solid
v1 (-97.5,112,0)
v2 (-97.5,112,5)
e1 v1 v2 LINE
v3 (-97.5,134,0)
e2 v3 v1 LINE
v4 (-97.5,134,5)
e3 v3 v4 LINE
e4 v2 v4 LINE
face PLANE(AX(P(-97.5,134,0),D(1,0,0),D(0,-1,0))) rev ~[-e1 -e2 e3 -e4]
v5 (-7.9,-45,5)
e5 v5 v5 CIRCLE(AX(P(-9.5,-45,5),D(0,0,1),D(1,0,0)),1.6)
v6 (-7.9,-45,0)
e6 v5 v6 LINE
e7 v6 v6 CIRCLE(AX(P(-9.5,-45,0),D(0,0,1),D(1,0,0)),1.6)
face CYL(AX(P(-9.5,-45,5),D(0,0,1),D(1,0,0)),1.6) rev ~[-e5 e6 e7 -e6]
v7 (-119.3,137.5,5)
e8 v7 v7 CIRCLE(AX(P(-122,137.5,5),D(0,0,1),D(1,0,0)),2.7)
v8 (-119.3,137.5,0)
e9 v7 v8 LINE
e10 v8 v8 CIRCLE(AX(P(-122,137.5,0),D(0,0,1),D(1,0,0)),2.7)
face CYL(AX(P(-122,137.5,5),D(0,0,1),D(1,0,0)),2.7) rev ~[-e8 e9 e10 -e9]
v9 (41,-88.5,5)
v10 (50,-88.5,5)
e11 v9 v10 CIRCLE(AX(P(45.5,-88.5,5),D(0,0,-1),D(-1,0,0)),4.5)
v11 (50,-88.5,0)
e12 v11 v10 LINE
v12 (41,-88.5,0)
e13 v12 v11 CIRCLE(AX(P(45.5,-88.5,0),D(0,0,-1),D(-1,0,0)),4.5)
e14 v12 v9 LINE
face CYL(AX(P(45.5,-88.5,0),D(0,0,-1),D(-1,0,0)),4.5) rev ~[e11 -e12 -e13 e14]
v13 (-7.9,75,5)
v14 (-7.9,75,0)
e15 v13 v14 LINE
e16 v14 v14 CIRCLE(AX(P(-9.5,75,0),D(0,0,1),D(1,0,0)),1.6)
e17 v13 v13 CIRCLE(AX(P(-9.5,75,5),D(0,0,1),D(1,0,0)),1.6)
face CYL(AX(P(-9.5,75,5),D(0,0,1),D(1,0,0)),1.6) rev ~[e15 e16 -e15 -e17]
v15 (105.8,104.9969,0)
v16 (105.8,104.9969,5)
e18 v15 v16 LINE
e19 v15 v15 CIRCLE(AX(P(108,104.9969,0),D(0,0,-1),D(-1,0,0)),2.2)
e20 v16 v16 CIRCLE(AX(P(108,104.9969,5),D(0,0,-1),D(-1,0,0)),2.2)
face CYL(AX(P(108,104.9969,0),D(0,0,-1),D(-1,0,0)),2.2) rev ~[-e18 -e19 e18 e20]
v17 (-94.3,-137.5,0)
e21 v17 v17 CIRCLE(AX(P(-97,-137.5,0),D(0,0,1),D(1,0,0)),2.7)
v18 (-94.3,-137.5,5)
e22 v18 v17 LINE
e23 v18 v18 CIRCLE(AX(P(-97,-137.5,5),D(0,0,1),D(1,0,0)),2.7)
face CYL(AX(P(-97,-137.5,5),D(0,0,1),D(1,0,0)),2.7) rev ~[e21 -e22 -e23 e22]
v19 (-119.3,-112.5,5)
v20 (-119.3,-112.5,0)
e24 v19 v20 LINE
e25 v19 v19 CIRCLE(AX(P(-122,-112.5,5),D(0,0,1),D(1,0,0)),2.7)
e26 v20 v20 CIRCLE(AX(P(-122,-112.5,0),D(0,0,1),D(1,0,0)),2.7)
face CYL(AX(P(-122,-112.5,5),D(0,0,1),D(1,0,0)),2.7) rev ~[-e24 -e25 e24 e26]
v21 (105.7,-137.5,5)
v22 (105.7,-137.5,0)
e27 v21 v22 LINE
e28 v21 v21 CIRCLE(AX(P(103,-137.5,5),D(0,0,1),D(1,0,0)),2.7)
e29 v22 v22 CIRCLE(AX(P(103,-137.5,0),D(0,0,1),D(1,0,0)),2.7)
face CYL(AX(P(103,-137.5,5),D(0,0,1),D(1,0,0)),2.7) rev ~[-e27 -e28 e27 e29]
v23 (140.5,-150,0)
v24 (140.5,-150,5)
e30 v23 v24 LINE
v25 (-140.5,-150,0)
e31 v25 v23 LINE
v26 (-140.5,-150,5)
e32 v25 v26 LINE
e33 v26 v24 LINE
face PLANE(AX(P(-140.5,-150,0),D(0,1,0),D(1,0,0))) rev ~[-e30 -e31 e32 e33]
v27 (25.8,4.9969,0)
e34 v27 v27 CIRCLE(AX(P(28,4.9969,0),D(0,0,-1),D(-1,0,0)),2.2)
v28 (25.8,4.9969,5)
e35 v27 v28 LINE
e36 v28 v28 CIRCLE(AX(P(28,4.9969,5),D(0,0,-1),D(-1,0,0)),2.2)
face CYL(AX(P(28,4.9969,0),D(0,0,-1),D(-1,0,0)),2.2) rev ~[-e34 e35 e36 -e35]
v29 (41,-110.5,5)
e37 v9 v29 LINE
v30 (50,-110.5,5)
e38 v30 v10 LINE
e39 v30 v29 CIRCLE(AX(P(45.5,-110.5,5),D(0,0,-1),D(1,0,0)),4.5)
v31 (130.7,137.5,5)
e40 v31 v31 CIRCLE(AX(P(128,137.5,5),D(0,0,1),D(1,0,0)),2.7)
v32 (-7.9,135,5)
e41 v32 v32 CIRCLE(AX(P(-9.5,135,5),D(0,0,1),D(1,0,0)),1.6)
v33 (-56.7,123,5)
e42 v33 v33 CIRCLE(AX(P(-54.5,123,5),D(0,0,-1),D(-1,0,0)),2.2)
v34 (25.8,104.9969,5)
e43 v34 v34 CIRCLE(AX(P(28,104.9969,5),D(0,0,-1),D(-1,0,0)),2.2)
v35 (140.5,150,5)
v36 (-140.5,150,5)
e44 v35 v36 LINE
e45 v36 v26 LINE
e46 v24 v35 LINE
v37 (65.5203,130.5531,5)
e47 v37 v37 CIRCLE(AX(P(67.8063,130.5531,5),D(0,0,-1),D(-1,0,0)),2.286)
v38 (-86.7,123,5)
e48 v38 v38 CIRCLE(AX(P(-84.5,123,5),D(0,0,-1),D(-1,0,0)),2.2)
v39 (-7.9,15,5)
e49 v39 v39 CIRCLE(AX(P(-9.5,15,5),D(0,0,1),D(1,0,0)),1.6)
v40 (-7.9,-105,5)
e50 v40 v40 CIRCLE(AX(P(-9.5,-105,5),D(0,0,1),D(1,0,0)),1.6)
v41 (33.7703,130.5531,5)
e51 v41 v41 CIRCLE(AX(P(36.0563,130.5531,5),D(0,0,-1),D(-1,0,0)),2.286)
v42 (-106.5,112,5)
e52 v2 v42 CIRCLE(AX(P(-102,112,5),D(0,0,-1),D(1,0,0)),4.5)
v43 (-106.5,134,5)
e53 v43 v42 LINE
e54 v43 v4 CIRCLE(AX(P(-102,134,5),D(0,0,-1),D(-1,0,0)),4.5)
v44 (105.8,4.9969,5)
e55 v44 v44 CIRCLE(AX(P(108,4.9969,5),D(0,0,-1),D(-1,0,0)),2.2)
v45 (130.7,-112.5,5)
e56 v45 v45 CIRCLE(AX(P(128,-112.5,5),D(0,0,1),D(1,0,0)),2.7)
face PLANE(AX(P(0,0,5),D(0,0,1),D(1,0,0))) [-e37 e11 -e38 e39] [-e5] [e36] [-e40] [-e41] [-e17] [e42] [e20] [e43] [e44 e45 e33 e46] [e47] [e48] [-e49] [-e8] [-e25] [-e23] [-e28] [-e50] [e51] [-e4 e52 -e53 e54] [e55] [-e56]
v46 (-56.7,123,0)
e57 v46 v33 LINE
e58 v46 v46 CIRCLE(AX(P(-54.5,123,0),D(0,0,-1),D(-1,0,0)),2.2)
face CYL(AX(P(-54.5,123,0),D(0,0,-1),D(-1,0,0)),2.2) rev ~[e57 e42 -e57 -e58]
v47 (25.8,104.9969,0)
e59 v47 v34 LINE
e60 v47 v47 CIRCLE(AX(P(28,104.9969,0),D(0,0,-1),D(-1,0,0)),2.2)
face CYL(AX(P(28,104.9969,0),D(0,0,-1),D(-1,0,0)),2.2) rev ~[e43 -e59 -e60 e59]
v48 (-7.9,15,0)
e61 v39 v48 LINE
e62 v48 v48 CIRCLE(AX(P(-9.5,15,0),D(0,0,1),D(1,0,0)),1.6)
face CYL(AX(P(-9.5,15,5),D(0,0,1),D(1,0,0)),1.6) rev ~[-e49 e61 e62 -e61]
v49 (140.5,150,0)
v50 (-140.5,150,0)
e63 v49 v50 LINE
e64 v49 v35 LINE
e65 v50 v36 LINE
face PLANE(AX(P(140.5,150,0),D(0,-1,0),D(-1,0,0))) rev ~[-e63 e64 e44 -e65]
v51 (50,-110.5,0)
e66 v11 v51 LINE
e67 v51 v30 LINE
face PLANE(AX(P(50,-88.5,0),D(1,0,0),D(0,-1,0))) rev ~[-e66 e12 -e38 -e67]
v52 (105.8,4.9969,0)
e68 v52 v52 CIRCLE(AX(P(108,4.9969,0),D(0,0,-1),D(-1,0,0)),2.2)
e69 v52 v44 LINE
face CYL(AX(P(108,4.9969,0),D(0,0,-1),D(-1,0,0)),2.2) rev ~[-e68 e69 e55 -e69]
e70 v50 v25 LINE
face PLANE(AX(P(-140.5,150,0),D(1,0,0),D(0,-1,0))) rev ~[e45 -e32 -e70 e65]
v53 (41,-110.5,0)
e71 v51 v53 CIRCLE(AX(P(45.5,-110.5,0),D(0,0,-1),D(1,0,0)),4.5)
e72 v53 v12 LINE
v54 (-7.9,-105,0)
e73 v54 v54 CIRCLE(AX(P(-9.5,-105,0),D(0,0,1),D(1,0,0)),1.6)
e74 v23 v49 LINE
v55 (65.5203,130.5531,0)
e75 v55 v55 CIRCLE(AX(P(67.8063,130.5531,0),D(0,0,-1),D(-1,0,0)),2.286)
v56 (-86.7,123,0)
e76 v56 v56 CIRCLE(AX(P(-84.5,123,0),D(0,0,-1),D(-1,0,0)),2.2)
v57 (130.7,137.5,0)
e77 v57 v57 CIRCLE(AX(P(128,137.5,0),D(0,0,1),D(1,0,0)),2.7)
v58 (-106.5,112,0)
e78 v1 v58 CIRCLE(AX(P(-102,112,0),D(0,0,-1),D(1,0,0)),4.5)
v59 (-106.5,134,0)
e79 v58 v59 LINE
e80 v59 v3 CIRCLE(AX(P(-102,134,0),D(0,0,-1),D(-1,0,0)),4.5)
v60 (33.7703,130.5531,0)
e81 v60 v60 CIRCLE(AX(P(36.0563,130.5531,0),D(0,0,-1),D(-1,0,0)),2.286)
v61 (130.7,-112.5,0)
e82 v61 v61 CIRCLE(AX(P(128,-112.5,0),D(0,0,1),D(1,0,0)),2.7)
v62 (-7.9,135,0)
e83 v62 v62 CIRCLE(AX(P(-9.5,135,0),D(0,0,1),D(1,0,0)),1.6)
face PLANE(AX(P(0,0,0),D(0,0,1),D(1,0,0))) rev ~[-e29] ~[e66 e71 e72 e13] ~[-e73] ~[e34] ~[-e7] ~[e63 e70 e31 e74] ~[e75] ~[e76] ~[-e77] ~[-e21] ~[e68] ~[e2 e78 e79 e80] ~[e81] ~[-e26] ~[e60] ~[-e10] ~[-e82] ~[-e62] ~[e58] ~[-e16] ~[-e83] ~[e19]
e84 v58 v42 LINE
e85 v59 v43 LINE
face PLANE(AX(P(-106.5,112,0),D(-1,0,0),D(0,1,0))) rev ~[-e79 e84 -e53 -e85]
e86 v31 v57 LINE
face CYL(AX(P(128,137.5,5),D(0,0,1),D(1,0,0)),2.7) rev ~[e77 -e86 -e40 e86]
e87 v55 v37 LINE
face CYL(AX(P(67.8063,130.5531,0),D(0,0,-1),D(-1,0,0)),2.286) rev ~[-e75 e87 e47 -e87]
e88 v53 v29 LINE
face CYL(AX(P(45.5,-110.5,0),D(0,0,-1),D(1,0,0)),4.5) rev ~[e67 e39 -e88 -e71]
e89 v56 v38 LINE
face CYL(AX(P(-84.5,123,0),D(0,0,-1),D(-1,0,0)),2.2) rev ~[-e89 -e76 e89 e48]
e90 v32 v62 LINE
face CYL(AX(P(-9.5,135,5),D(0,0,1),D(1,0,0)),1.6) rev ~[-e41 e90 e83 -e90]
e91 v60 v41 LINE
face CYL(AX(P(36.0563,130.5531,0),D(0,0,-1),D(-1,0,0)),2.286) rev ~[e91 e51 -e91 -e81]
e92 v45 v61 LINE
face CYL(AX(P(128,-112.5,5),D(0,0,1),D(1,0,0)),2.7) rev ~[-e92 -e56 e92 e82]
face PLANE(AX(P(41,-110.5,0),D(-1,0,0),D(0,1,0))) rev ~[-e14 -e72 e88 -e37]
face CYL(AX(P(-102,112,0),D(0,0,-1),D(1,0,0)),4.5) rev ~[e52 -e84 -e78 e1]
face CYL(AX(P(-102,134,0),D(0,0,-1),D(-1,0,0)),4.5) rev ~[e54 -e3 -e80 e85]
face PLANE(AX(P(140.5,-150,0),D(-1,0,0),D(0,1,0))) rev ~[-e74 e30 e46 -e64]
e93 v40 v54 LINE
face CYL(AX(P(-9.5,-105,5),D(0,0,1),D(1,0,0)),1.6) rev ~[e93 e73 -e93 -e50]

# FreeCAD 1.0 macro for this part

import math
import FreeCAD as App
import Part
import Sketcher

V = App.Vector
Q = App.Units.Quantity


def add_polygon(sketch, points):
    """Adds a closed chain of lines whose ends are joined by coincident constraints."""
    first, n = sketch.GeometryCount, len(points)
    for a, b in zip(points, points[1:] + points[:1]):
        sketch.addGeometry(Part.LineSegment(App.Vector(*a, 0), App.Vector(*b, 0)), False)
    for i in range(n):
        sketch.addConstraint(Sketcher.Constraint("Coincident", first + i, 2, first + (i + 1) % n, 1))

doc = App.newDocument("Part")
body = doc.addObject("PartDesign::Body", "Body")

sketch1 = body.newObject("Sketcher::SketchObject", "Sketch")
sketch1.AttachmentSupport = (doc.getObject("XY_Plane"), [""])
sketch1.MapMode = "FlatFace"
add_polygon(sketch1, [(-140, 150), (-140, -150), (140, -150), (140, 150)])
sketch1.addConstraint(Sketcher.Constraint("Vertical", 0))
sketch1.addConstraint(Sketcher.Constraint("Horizontal", 1))
sketch1.addConstraint(Sketcher.Constraint("Vertical", 2))
sketch1.addConstraint(Sketcher.Constraint("Horizontal", 3))
sketch1.addConstraint(Sketcher.Constraint("Symmetric", 0, 2, 2, 2, -1, 1))
sketch1.addConstraint(Sketcher.Constraint("DistanceX", 1, 1, 1, 2, Q("281 mm")))
sketch1.addConstraint(Sketcher.Constraint("DistanceY", 0, 2, 0, 1, Q("300 mm")))
pad1 = body.newObject("PartDesign::Pad", "Pad")
pad1.Profile = sketch1
pad1.Length = 5

sketch2 = body.newObject("Sketcher::SketchObject", "Sketch001")
sketch2.AttachmentSupport = (doc.getObject("XY_Plane"), [""])
sketch2.MapMode = "FlatFace"
sketch2.AttachmentOffset = App.Placement(V(0, 0, 5), App.Rotation())
sketch2.addGeometry(Part.Circle(V(-122, 137.5, 0), V(0, 0, 1), 2.7), False)
sketch2.addGeometry(Part.Circle(V(128, 137.5, 0), V(0, 0, 1), 2.7), False)
sketch2.addGeometry(Part.Circle(V(128, -112.5, 0), V(0, 0, 1), 2.7), False)
sketch2.addGeometry(Part.Circle(V(-122, -112.5, 0), V(0, 0, 1), 2.7), False)
sketch2.addGeometry(Part.Circle(V(-97, -137.5, 0), V(0, 0, 1), 2.7), False)
sketch2.addGeometry(Part.Circle(V(103, -137.5, 0), V(0, 0, 1), 2.7), False)
sketch2.addConstraint(Sketcher.Constraint("Equal", 0, 1))
sketch2.addConstraint(Sketcher.Constraint("Equal", 1, 2))
sketch2.addConstraint(Sketcher.Constraint("Equal", 2, 3))
sketch2.addConstraint(Sketcher.Constraint("Equal", 3, 4))
sketch2.addConstraint(Sketcher.Constraint("Equal", 4, 5))
sketch2.addConstraint(Sketcher.Constraint("Horizontal", 0, 3, 1, 3))
sketch2.addConstraint(Sketcher.Constraint("Horizontal", 2, 3, 3, 3))
sketch2.addConstraint(Sketcher.Constraint("Horizontal", 4, 3, 5, 3))
sketch2.addConstraint(Sketcher.Constraint("Vertical", 1, 3, 2, 3))
sketch2.addConstraint(Sketcher.Constraint("Vertical", 0, 3, 3, 3))
sketch2.addConstraint(Sketcher.Constraint("Diameter", 0, Q("5.4 mm")))
sketch2.addConstraint(Sketcher.Constraint("DistanceX", 0, 3, -1, 1, Q("122 mm")))
sketch2.addConstraint(Sketcher.Constraint("DistanceX", -1, 1, 1, 3, Q("128 mm")))
sketch2.addConstraint(Sketcher.Constraint("DistanceX", 4, 3, -1, 1, Q("97 mm")))
sketch2.addConstraint(Sketcher.Constraint("DistanceX", -1, 1, 5, 3, Q("103 mm")))
sketch2.addConstraint(Sketcher.Constraint("DistanceY", 2, 3, 1, 3, Q("250 mm")))
sketch2.addConstraint(Sketcher.Constraint("DistanceY", 4, 3, 3, 3, Q("25 mm")))
sketch2.addConstraint(Sketcher.Constraint("DistanceY", -1, 1, 0, 3, Q("137.5 mm")))
pocket1 = body.newObject("PartDesign::Pocket", "Pocket")
pocket1.Profile = sketch2
pocket1.Type = "ThroughAll"

sketch3 = body.newObject("Sketcher::SketchObject", "Sketch002")
sketch3.AttachmentSupport = (doc.getObject("XY_Plane"), [""])
sketch3.MapMode = "FlatFace"
sketch3.AttachmentOffset = App.Placement(V(0, 0, 5), App.Rotation())
sketch3.addGeometry(Part.Circle(V(-9.5, 15, 0), V(0, 0, 1), 1.6), False)
sketch3.addGeometry(Part.Circle(V(-9.5, 75, 0), V(0, 0, 1), 1.6), False)
sketch3.addGeometry(Part.Circle(V(-9.5, 135, 0), V(0, 0, 1), 1.6), False)
sketch3.addGeometry(Part.Circle(V(-9.5, -45, 0), V(0, 0, 1), 1.6), False)
sketch3.addGeometry(Part.Circle(V(-9.5, -105, 0), V(0, 0, 1), 1.6), False)
sketch3.addConstraint(Sketcher.Constraint("Equal", 0, 1))
sketch3.addConstraint(Sketcher.Constraint("Equal", 1, 2))
sketch3.addConstraint(Sketcher.Constraint("Equal", 2, 3))
sketch3.addConstraint(Sketcher.Constraint("Equal", 3, 4))
sketch3.addConstraint(Sketcher.Constraint("Vertical", 0, 3, 1, 3))
sketch3.addConstraint(Sketcher.Constraint("Vertical", 1, 3, 2, 3))
sketch3.addConstraint(Sketcher.Constraint("Vertical", 2, 3, 3, 3))
sketch3.addConstraint(Sketcher.Constraint("Vertical", 3, 3, 4, 3))
sketch3.addConstraint(Sketcher.Constraint("Diameter", 0, Q("3.2 mm")))
sketch3.addConstraint(Sketcher.Constraint("DistanceY", -1, 1, 0, 3, Q("15 mm")))
sketch3.addConstraint(Sketcher.Constraint("DistanceY", 0, 3, 1, 3, Q("60 mm")))
sketch3.addConstraint(Sketcher.Constraint("DistanceY", 1, 3, 2, 3, Q("60 mm")))
sketch3.addConstraint(Sketcher.Constraint("DistanceY", 3, 3, 0, 3, Q("60 mm")))
sketch3.addConstraint(Sketcher.Constraint("DistanceY", 4, 3, 3, 3, Q("60 mm")))
sketch3.addConstraint(Sketcher.Constraint("DistanceX", 0, 3, -1, 1, Q("9.5 mm")))
pocket2 = body.newObject("PartDesign::Pocket", "Pocket001")
pocket2.Profile = sketch3
pocket2.Type = "ThroughAll"

sketch4 = body.newObject("Sketcher::SketchObject", "Sketch003")
sketch4.AttachmentSupport = (doc.getObject("XY_Plane"), [""])
sketch4.MapMode = "FlatFace"
sketch4.addGeometry(Part.Circle(V(-54.5, 123, 0), V(0, 0, 1), 2.2), False)
sketch4.addGeometry(Part.Circle(V(-84.5, 123, 0), V(0, 0, 1), 2.2), False)
sketch4.addGeometry(Part.ArcOfCircle(Part.Circle(V(45.5, -88.5, 0), V(0, 0, 1), 4.5), math.radians(0), math.radians(180)), False)
sketch4.addGeometry(Part.LineSegment(V(50, -88.5, 0), V(50, -110.5, 0)), False)
sketch4.addGeometry(Part.ArcOfCircle(Part.Circle(V(45.5, -110.5, 0), V(0, 0, 1), 4.5), math.radians(180), math.radians(360)), False)
sketch4.addGeometry(Part.LineSegment(V(41, -110.5, 0), V(41, -88.5, 0)), False)
sketch4.addGeometry(Part.ArcOfCircle(Part.Circle(V(-102, 134, 0), V(0, 0, 1), 4.5), math.radians(0), math.radians(180)), False)
sketch4.addGeometry(Part.LineSegment(V(-97.5, 134, 0), V(-97.5, 112, 0)), False)
sketch4.addGeometry(Part.ArcOfCircle(Part.Circle(V(-102, 112, 0), V(0, 0, 1), 4.5), math.radians(180), math.radians(360)), False)
sketch4.addGeometry(Part.LineSegment(V(-106.5, 112, 0), V(-106.5, 134, 0)), False)
sketch4.addGeometry(Part.Circle(V(67.8, 130.6, 0), V(0, 0, 1), 2.3), False)
sketch4.addGeometry(Part.Circle(V(36.1, 130.6, 0), V(0, 0, 1), 2.3), False)
sketch4.addGeometry(Part.Circle(V(108, 105, 0), V(0, 0, 1), 2.2), False)
sketch4.addGeometry(Part.Circle(V(28, 105, 0), V(0, 0, 1), 2.2), False)
sketch4.addGeometry(Part.Circle(V(28, 5, 0), V(0, 0, 1), 2.2), False)
sketch4.addGeometry(Part.Circle(V(108, 5, 0), V(0, 0, 1), 2.2), False)
sketch4.addConstraint(Sketcher.Constraint("Tangent", 2, 1, 3, 1))
sketch4.addConstraint(Sketcher.Constraint("Tangent", 3, 2, 4, 2))
sketch4.addConstraint(Sketcher.Constraint("Tangent", 4, 1, 5, 1))
sketch4.addConstraint(Sketcher.Constraint("Tangent", 5, 2, 2, 2))
sketch4.addConstraint(Sketcher.Constraint("Tangent", 6, 1, 7, 1))
sketch4.addConstraint(Sketcher.Constraint("Tangent", 7, 2, 8, 2))
sketch4.addConstraint(Sketcher.Constraint("Tangent", 8, 1, 9, 1))
sketch4.addConstraint(Sketcher.Constraint("Tangent", 9, 2, 6, 2))
sketch4.addConstraint(Sketcher.Constraint("Vertical", 3))
sketch4.addConstraint(Sketcher.Constraint("Vertical", 5))
sketch4.addConstraint(Sketcher.Constraint("Vertical", 7))
sketch4.addConstraint(Sketcher.Constraint("Vertical", 9))
sketch4.addConstraint(Sketcher.Constraint("Equal", 0, 1))
sketch4.addConstraint(Sketcher.Constraint("Equal", 4, 6))
sketch4.addConstraint(Sketcher.Constraint("Equal", 10, 11))
sketch4.addConstraint(Sketcher.Constraint("Equal", 1, 12))
sketch4.addConstraint(Sketcher.Constraint("Equal", 12, 13))
sketch4.addConstraint(Sketcher.Constraint("Equal", 13, 14))
sketch4.addConstraint(Sketcher.Constraint("Equal", 14, 15))
sketch4.addConstraint(Sketcher.Constraint("Horizontal", 0, 3, 1, 3))
sketch4.addConstraint(Sketcher.Constraint("Horizontal", 10, 3, 11, 3))
sketch4.addConstraint(Sketcher.Constraint("Horizontal", 12, 3, 13, 3))
sketch4.addConstraint(Sketcher.Constraint("Horizontal", 14, 3, 15, 3))
sketch4.addConstraint(Sketcher.Constraint("Vertical", 13, 3, 14, 3))
sketch4.addConstraint(Sketcher.Constraint("Vertical", 12, 3, 15, 3))
sketch4.addConstraint(Sketcher.Constraint("Equal", 5, 7))
sketch4.addConstraint(Sketcher.Constraint("Diameter", 0, Q("4.4 mm")))
sketch4.addConstraint(Sketcher.Constraint("Radius", 2, Q("4.5 mm")))
sketch4.addConstraint(Sketcher.Constraint("DistanceY", 3, 2, 3, 1, Q("22 mm")))
sketch4.addConstraint(Sketcher.Constraint("Diameter", 10, Q("4.572 mm")))
sketch4.addConstraint(Sketcher.Constraint("DistanceX", -1, 1, 2, 1, Q("50 mm")))
sketch4.addConstraint(Sketcher.Constraint("DistanceX", 1, 3, 0, 3, Q("30 mm")))
sketch4.addConstraint(Sketcher.Constraint("DistanceX", 0, 3, 2, 3, Q("100 mm")))
sketch4.addConstraint(Sketcher.Constraint("DistanceX", 13, 3, 12, 3, Q("80 mm")))
sketch4.addConstraint(Sketcher.Constraint("DistanceY", 14, 3, 13, 3, Q("100 mm")))
sketch4.addConstraint(Sketcher.Constraint("DistanceX", 14, 3, 2, 1, Q("22 mm")))
sketch4.addConstraint(Sketcher.Constraint("DistanceX", 8, 1, 1, 3, Q("22 mm")))
sketch4.addConstraint(Sketcher.Constraint("DistanceX", 11, 3, 10, 3, Q("31.75 mm")))
sketch4.addConstraint(Sketcher.Constraint("DistanceY", -1, 1, 0, 3, Q("123 mm")))
sketch4.addConstraint(Sketcher.Constraint("DistanceY", -1, 1, 6, 3, Q("134 mm")))
sketch4.addConstraint(Sketcher.Constraint("DistanceY", 2, 3, -1, 1, Q("88.5 mm")))
sketch4.addConstraint(Sketcher.Constraint("DistanceY", -1, 1, 10, 3, Q("130.553 mm")))
sketch4.addConstraint(Sketcher.Constraint("DistanceY", -1, 1, 12, 3, Q("104.997 mm")))
sketch4.addConstraint(Sketcher.Constraint("DistanceX", -1, 1, 10, 3, Q("67.8063 mm")))
pocket3 = body.newObject("PartDesign::Pocket", "Pocket002")
pocket3.Profile = sketch4
pocket3.Type = "ThroughAll"
pocket3.Reversed = True

doc.recompute()
